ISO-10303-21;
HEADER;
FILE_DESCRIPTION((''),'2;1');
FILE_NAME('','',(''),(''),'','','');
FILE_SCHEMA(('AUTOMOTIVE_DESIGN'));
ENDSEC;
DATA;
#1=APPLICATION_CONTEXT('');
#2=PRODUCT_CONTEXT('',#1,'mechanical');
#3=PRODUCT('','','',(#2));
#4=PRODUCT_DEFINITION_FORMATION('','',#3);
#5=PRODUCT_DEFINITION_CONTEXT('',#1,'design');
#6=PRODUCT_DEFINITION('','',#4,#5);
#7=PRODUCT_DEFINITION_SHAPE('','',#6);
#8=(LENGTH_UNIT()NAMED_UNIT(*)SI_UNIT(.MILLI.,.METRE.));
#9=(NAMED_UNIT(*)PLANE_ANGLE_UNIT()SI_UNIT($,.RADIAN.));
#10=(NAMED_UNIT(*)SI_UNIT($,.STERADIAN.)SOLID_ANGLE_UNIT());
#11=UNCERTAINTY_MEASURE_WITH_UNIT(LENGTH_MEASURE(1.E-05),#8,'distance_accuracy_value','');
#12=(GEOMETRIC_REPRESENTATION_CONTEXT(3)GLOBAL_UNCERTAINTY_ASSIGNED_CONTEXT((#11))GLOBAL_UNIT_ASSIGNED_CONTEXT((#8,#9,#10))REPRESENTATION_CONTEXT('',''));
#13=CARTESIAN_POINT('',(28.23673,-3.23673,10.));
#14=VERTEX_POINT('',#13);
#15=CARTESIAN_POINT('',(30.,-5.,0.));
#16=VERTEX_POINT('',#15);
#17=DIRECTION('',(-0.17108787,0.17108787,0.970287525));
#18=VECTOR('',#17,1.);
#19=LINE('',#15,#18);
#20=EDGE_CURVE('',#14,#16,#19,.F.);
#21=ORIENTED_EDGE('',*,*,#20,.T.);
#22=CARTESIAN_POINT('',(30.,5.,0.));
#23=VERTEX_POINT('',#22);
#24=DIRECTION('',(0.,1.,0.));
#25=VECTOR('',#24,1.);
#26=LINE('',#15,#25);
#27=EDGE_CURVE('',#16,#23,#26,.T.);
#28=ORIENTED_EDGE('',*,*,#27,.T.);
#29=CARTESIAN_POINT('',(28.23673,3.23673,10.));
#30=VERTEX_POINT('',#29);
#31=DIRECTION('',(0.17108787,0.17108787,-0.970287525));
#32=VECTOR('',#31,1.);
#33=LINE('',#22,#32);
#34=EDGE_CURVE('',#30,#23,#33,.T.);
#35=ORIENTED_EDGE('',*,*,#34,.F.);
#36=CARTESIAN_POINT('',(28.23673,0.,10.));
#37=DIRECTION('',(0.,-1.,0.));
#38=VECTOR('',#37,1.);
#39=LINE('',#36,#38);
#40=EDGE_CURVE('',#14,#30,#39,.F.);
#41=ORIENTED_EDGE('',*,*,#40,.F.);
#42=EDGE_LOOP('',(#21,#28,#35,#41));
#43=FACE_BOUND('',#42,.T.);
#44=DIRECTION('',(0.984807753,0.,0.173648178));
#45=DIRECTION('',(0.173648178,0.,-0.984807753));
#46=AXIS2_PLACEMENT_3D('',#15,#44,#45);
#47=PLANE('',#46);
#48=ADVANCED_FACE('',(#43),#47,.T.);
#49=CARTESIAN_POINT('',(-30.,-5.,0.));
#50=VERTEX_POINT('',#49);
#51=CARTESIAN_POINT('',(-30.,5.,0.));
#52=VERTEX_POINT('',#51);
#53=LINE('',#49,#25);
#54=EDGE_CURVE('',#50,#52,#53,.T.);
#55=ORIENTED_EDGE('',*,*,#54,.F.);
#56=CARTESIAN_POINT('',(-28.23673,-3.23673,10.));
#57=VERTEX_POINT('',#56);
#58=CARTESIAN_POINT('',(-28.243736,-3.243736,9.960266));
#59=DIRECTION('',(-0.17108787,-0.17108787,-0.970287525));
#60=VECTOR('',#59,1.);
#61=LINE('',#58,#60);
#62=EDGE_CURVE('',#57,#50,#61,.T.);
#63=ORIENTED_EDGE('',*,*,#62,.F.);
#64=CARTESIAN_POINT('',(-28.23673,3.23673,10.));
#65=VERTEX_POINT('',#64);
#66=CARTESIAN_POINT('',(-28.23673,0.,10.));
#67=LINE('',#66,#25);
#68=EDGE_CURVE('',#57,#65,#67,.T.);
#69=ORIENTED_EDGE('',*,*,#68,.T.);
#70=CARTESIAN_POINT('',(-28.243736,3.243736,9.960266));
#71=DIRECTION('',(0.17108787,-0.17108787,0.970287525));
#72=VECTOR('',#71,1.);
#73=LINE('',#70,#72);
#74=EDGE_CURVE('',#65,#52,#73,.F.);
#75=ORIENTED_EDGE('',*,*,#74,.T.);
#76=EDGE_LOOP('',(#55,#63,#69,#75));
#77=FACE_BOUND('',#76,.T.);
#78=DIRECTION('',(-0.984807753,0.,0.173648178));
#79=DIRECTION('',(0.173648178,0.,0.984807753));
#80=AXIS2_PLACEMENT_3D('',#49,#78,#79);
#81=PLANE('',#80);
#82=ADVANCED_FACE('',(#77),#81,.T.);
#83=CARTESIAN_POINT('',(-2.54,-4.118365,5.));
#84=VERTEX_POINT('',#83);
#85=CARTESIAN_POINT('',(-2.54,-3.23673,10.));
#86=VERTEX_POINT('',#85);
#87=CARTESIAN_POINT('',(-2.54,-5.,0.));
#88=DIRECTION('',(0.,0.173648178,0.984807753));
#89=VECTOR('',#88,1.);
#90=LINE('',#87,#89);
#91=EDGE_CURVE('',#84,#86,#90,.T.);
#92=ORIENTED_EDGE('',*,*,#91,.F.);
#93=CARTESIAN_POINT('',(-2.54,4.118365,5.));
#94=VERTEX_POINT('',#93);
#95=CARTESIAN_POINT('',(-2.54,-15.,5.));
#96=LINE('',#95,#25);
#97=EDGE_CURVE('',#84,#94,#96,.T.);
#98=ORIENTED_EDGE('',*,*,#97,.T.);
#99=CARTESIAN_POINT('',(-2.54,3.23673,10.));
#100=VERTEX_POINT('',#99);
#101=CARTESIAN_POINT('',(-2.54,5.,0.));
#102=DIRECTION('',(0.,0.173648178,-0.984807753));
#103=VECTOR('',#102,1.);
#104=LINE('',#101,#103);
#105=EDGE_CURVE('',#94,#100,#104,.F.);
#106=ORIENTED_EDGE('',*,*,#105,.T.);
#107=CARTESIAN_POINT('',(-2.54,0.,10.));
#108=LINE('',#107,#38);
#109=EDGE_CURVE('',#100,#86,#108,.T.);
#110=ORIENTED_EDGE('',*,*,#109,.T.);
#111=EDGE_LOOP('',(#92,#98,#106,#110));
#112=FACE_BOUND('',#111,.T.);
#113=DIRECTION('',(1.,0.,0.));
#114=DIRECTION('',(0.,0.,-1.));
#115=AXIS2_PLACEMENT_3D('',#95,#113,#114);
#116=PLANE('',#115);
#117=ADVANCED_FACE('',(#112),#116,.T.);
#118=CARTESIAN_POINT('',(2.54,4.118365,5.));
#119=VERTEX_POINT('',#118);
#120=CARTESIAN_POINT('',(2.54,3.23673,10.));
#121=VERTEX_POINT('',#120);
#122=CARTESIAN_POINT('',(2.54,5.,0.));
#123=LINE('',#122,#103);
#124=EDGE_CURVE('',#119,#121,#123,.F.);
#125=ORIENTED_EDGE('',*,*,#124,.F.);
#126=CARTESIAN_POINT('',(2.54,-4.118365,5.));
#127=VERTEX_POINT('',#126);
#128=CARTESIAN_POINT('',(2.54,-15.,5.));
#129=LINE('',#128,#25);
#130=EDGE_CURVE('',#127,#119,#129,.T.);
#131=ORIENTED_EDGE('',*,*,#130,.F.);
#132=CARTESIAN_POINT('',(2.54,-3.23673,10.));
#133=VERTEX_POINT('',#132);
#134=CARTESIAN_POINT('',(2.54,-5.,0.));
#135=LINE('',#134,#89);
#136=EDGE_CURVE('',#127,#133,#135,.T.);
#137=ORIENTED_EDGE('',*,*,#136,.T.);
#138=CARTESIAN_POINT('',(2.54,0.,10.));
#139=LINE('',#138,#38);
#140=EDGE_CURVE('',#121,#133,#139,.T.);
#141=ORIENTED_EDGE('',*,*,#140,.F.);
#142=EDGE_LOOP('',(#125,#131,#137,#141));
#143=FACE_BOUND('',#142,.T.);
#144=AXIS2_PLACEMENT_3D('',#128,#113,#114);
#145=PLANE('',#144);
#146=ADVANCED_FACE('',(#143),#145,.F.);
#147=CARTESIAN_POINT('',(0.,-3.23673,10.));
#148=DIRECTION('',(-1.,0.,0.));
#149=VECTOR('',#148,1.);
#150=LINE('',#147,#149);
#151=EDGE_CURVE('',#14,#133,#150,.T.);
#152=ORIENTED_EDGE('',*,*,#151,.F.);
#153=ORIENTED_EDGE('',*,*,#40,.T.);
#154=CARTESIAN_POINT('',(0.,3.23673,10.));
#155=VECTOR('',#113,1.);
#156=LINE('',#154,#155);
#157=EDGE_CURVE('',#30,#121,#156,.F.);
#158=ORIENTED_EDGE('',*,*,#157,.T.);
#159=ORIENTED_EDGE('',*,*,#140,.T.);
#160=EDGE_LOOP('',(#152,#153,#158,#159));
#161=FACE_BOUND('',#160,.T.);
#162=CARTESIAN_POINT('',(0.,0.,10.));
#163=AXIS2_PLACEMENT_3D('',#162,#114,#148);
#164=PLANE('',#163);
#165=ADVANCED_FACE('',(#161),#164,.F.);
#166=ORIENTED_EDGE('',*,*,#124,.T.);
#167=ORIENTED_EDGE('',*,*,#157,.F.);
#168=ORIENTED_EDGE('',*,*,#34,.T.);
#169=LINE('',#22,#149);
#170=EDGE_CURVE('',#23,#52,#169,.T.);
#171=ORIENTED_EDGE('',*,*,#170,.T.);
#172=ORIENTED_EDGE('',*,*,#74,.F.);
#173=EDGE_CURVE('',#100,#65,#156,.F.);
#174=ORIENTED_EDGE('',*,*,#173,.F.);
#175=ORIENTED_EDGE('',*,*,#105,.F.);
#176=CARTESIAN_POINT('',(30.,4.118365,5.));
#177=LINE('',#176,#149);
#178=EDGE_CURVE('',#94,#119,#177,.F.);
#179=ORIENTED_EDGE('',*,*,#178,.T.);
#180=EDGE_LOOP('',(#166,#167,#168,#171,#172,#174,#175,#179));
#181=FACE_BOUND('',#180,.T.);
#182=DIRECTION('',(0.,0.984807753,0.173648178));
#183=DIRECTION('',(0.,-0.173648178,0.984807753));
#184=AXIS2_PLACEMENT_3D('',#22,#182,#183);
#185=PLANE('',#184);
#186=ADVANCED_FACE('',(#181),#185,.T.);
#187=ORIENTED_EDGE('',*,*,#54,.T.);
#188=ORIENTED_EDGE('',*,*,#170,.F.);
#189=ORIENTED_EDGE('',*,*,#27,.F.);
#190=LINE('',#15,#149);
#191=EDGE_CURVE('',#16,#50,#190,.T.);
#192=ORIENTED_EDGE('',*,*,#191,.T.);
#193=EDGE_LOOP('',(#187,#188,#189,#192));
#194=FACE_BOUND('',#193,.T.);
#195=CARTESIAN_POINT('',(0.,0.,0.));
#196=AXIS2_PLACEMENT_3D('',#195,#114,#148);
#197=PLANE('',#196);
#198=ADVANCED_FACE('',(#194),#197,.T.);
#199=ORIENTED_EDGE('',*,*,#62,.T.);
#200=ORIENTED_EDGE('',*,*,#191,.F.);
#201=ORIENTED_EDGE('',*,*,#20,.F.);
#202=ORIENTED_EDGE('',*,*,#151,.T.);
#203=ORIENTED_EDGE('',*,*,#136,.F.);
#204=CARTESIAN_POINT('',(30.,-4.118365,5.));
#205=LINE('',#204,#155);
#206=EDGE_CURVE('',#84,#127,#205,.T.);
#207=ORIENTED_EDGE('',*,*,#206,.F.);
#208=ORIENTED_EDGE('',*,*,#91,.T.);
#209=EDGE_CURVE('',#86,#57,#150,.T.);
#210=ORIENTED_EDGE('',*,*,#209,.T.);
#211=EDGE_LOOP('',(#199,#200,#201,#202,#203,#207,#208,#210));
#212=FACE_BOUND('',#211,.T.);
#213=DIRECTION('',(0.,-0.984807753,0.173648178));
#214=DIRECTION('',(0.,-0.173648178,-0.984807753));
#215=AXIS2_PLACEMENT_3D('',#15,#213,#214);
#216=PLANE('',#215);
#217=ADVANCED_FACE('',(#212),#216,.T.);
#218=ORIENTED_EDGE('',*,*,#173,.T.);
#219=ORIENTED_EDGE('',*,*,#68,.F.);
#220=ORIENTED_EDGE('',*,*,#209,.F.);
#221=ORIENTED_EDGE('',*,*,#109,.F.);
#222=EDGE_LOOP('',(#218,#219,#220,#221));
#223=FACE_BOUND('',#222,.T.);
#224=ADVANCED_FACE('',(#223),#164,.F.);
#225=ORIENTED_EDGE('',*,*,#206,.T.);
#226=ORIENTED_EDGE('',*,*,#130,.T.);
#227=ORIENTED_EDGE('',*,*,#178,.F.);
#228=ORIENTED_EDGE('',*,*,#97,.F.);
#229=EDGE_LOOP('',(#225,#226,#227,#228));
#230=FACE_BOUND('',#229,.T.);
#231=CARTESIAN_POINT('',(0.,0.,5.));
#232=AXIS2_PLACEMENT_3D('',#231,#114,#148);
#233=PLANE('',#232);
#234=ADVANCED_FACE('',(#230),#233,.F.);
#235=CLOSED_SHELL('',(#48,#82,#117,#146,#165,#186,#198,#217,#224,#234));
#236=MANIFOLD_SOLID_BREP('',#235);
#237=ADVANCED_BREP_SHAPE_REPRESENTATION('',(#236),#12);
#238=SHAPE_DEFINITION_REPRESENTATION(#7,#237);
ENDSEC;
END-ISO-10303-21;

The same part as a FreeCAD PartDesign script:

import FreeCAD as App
import Part
import Sketcher

V = App.Vector
Q = App.Units.Quantity


def faces_at(feature, points):
    """Names of the faces that lie closest to the given points."""
    faces = feature.Shape.Faces
    near = lambda p: min(range(len(faces)), key=lambda i: faces[i].distToShape(Part.Vertex(*p))[0])
    return sorted({f"Face{near(p) + 1}" for p in points})


def add_polygon(sketch, points):
    """Adds a closed chain of lines whose ends are joined by coincident constraints."""
    first, n = sketch.GeometryCount, len(points)
    for a, b in zip(points, points[1:] + points[:1]):
        sketch.addGeometry(Part.LineSegment(App.Vector(*a, 0), App.Vector(*b, 0)), False)
    for i in range(n):
        sketch.addConstraint(Sketcher.Constraint("Coincident", first + i, 2, first + (i + 1) % n, 1))

doc = App.newDocument("Part")
body = doc.addObject("PartDesign::Body", "Body")

sketch1 = body.newObject("Sketcher::SketchObject", "Sketch")
sketch1.AttachmentSupport = (doc.getObject("XY_Plane"), [""])
sketch1.MapMode = "FlatFace"
add_polygon(sketch1, [(-30, -5), (30, -5), (30, 5), (-30, 5)])
sketch1.addConstraint(Sketcher.Constraint("Horizontal", 0))
sketch1.addConstraint(Sketcher.Constraint("Vertical", 1))
sketch1.addConstraint(Sketcher.Constraint("Horizontal", 2))
sketch1.addConstraint(Sketcher.Constraint("Vertical", 3))
sketch1.addConstraint(Sketcher.Constraint("Symmetric", 0, 2, 2, 2, -1, 1))
sketch1.addConstraint(Sketcher.Constraint("DistanceX", 0, 1, 0, 2, Q("60 mm")))
sketch1.addConstraint(Sketcher.Constraint("DistanceY", 1, 1, 1, 2, Q("10 mm")))
pad1 = body.newObject("PartDesign::Pad", "Pad")
pad1.Profile = sketch1
pad1.Length = 10
doc.recompute()

draft = body.newObject("PartDesign::Draft", "Draft")
draft.Base = (pad1, faces_at(pad1, [
    (-30, 0, 5),
    (0, -5, 5),
    (0, 5, 5),
    (30, 0, 5),
]))
draft.NeutralPlane = (doc.getObject("XY_Plane"), [""])
draft.Angle = 10
draft.Reversed = False

sketch2 = body.newObject("Sketcher::SketchObject", "Sketch001")
sketch2.AttachmentSupport = (doc.getObject("XY_Plane"), [""])
sketch2.MapMode = "FlatFace"
sketch2.AttachmentOffset = App.Placement(V(0, 0, 10), App.Rotation())
add_polygon(sketch2, [(-3, 15), (-3, -15), (3, -15), (3, 15)])
sketch2.addConstraint(Sketcher.Constraint("Vertical", 0))
sketch2.addConstraint(Sketcher.Constraint("Horizontal", 1))
sketch2.addConstraint(Sketcher.Constraint("Vertical", 2))
sketch2.addConstraint(Sketcher.Constraint("Horizontal", 3))
sketch2.addConstraint(Sketcher.Constraint("Symmetric", 0, 2, 2, 2, -1, 1))
sketch2.addConstraint(Sketcher.Constraint("DistanceY", 0, 2, 0, 1, Q("30 mm")))
sketch2.addConstraint(Sketcher.Constraint("DistanceX", 1, 1, 1, 2, Q("5.08 mm")))
pocket1 = body.newObject("PartDesign::Pocket", "Pocket")
pocket1.Profile = sketch2
pocket1.Length = 5

doc.recompute()
